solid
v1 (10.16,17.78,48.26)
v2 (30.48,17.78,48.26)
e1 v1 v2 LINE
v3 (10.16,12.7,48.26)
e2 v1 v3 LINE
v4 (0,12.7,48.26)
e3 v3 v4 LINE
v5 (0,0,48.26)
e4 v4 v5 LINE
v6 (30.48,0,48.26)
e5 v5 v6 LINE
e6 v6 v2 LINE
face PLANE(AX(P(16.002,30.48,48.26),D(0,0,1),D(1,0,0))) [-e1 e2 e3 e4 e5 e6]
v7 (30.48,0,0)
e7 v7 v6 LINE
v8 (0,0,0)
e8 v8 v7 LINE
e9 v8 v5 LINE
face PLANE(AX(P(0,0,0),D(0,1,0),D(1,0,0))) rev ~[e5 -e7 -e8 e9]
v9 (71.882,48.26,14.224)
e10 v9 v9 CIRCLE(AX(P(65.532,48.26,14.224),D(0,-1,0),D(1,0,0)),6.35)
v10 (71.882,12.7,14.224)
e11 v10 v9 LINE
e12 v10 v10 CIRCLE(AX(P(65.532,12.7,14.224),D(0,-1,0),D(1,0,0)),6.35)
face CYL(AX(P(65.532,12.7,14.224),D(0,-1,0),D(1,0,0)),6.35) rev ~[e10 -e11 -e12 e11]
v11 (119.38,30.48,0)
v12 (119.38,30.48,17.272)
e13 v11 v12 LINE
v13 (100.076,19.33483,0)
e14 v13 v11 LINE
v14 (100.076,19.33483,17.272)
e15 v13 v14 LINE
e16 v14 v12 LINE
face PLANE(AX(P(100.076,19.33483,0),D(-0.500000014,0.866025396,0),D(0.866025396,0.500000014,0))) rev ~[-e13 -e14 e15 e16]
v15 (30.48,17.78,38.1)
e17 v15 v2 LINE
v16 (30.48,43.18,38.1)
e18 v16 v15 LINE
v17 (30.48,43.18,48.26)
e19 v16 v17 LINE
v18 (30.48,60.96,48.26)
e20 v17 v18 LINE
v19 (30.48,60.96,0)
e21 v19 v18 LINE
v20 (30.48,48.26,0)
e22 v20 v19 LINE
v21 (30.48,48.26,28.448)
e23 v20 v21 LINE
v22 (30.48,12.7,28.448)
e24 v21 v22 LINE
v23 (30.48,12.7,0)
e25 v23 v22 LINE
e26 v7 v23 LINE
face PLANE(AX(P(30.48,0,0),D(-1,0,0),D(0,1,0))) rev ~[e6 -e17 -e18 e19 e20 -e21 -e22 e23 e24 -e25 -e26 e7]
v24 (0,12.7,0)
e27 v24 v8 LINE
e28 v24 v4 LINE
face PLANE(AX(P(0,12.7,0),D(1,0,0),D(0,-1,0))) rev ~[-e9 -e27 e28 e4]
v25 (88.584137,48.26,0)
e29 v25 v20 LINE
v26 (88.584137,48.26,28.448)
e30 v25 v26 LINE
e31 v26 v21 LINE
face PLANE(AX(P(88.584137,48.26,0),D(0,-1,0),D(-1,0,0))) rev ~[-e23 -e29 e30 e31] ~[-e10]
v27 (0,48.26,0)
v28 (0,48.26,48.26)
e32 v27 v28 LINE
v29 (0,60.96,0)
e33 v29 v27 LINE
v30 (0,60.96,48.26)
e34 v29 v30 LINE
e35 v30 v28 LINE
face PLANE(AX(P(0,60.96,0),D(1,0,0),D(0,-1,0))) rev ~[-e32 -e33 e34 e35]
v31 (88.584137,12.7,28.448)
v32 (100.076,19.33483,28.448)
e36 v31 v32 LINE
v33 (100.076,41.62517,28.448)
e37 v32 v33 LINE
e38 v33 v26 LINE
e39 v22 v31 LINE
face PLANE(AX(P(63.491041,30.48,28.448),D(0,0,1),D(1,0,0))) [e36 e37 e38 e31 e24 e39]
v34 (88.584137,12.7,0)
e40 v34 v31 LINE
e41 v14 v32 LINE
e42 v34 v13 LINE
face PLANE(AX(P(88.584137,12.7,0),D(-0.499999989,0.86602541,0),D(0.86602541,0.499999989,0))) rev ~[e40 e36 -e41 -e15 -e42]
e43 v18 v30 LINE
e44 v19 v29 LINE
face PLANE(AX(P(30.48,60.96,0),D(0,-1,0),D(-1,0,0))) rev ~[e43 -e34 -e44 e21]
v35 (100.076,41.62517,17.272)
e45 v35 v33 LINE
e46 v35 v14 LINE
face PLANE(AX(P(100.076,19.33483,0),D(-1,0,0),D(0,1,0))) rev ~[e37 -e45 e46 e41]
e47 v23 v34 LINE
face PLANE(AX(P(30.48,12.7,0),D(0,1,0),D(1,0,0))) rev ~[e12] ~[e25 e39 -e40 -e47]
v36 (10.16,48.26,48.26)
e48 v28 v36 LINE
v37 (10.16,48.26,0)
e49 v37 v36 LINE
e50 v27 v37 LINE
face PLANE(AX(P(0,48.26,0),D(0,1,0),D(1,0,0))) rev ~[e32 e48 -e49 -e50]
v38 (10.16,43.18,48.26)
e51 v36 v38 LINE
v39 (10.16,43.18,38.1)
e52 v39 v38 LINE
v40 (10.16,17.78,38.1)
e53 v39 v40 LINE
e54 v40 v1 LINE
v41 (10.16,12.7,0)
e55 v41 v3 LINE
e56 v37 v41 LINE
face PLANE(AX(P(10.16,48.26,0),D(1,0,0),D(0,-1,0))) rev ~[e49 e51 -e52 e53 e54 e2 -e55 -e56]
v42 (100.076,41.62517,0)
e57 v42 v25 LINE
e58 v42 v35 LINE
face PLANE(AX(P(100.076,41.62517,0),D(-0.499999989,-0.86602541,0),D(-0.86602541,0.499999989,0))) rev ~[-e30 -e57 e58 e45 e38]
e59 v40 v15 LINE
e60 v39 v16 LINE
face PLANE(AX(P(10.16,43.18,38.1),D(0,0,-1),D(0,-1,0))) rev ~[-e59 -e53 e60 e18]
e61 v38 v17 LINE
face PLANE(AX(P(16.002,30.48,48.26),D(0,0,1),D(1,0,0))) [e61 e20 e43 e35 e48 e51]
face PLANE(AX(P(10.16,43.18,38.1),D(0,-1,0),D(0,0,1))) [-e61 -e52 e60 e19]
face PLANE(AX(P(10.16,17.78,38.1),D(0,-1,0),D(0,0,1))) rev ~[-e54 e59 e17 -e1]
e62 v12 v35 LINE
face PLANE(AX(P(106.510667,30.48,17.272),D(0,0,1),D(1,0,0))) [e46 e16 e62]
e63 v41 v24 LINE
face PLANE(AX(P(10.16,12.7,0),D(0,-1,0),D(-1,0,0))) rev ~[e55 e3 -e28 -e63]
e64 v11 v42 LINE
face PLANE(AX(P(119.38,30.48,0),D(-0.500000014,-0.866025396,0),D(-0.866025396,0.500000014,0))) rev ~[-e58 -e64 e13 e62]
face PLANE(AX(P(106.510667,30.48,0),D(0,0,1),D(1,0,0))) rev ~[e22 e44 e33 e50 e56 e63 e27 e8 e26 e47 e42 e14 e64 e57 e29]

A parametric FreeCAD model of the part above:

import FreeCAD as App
import Part
import Sketcher

V = App.Vector
Q = App.Units.Quantity


def add_polygon(sketch, points):
    """Adds a closed chain of lines whose ends are joined by coincident constraints."""
    first, n = sketch.GeometryCount, len(points)
    for a, b in zip(points, points[1:] + points[:1]):
        sketch.addGeometry(Part.LineSegment(App.Vector(*a, 0), App.Vector(*b, 0)), False)
    for i in range(n):
        sketch.addConstraint(Sketcher.Constraint("Coincident", first + i, 2, first + (i + 1) % n, 1))

doc = App.newDocument("Part")
params = doc.addObject("Spreadsheet::Sheet", "Params")
for row, (alias, value) in enumerate([
    ("sketch1_width", "1.2 in"),
    ("sketch1_width2", "0.4 in"),
    ("sketch1_height", "0.5 in"),
    ("sketch1_height2", "2.4 in"),
    ("pad1_length", "1.9 in"),
    ("sketch2_height", "1.4 in"),
    ("pad2_length", "1.12 in"),
    ("pad3_length", "0.68 in"),
    ("sketch4_width", "1 in"),
    ("sketch4_height", "0.4 in"),
    ("pocket1_length", "1 in"),
    ("sketch5_diameter", "0.5 in"),
    ("pocket2_length", "1.83 in"),
], start=1):
    params.set(f"A{row}", alias)
    params.set(f"B{row}", "=" + value)
    params.setAlias(f"B{row}", alias)

body = doc.addObject("PartDesign::Body", "Body")

# Sketch on XY plane
sketch1 = body.newObject("Sketcher::SketchObject", "Sketch")
sketch1.AttachmentSupport = (doc.getObject("XY_Plane"), [""])
sketch1.MapMode = "FlatFace"
add_polygon(sketch1, [(0, 13), (0, 0), (30, 0), (30, 61), (0, 61), (0, 48), (10, 48), (10, 13)])  # lines 0-7
sketch1.addConstraint([
    Sketcher.Constraint("Vertical", 0),
    Sketcher.Constraint("Horizontal", 1),
    Sketcher.Constraint("Vertical", 2),
    Sketcher.Constraint("Horizontal", 3),
    Sketcher.Constraint("Vertical", 4),
    Sketcher.Constraint("Horizontal", 5),
    Sketcher.Constraint("Vertical", 6),
    Sketcher.Constraint("Horizontal", 7),
    Sketcher.Constraint("Coincident", 0, 2, -1, 1),
    Sketcher.Constraint("PointOnObject", 3, 2, -2),
    Sketcher.Constraint("Equal", 0, 4),
    Sketcher.Constraint("DistanceX", 1, 1, 1, 2, Q("1.2 in")),
    Sketcher.Constraint("DistanceX", 5, 1, 5, 2, Q("0.4 in")),
    Sketcher.Constraint("DistanceY", 0, 2, 0, 1, Q("0.5 in")),
    Sketcher.Constraint("DistanceY", 2, 1, 2, 2, Q("2.4 in")),
])
sketch1.setExpression("Constraints[19]", "Params.sketch1_width")
sketch1.setExpression("Constraints[20]", "Params.sketch1_width2")
sketch1.setExpression("Constraints[21]", "Params.sketch1_height")
sketch1.setExpression("Constraints[22]", "Params.sketch1_height2")
pad1 = body.newObject("PartDesign::Pad", "Pad")
pad1.Profile = sketch1
pad1.setExpression("Length", "Params.pad1_length")

# Sketch on XY plane
sketch2 = body.newObject("Sketcher::SketchObject", "Sketch001")
sketch2.AttachmentSupport = (doc.getObject("XY_Plane"), [""])
sketch2.MapMode = "FlatFace"
add_polygon(sketch2, [(30, 48), (30, 13), (89, 13), (100, 19), (100, 42), (89, 48)])  # lines 0-5
sketch2.addConstraint([
    Sketcher.Constraint("Vertical", 0),
    Sketcher.Constraint("Horizontal", 1),
    Sketcher.Constraint("Vertical", 3),
    Sketcher.Constraint("Horizontal", 5),
    Sketcher.Constraint("Vertical", 1, 2, 4, 2),
    Sketcher.Constraint("Equal", 2, 4),
    Sketcher.Constraint("DistanceY", 0, 2, 0, 1, Q("1.4 in")),
    Sketcher.Constraint("Angle", 2, Q("29.999999 deg")),
    Sketcher.Constraint("DistanceX", -1, 1, 0, 2, Q("1.2 in")),
    Sketcher.Constraint("DistanceY", -1, 1, 0, 2, Q("0.5 in")),
    Sketcher.Constraint("DistanceX", -1, 1, 2, 2, Q("3.94 in")),
    Sketcher.Constraint("DistanceY", 3, 1, 3, 2, Q("22.29034 mm")),
])
sketch2.setExpression("Constraints[12]", "Params.sketch2_height")
pad2 = body.newObject("PartDesign::Pad", "Pad001")
pad2.Profile = sketch2
pad2.setExpression("Length", "Params.pad2_length")

# Sketch on XY plane
sketch3 = body.newObject("Sketcher::SketchObject", "Sketch002")
sketch3.AttachmentSupport = (doc.getObject("XY_Plane"), [""])
sketch3.MapMode = "FlatFace"
add_polygon(sketch3, [(100, 42), (100, 19), (119, 30)])  # lines 0-2
sketch3.addConstraint([
    Sketcher.Constraint("Vertical", 0),
    Sketcher.Constraint("Equal", 1, 2),
    Sketcher.Constraint("Angle", 1, Q("30.000001 deg")),
    Sketcher.Constraint("DistanceX", -1, 1, 1, 2, Q("4.7 in")),
    Sketcher.Constraint("DistanceY", -1, 1, 1, 2, Q("1.2 in")),
    Sketcher.Constraint("DistanceX", -1, 1, 0, 2, Q("3.94 in")),
])
pad3 = body.newObject("PartDesign::Pad", "Pad002")
pad3.Profile = sketch3
pad3.setExpression("Length", "Params.pad3_length")

# Sketch on YZ plane
sketch4 = body.newObject("Sketcher::SketchObject", "Sketch003")
sketch4.AttachmentSupport = (doc.getObject("YZ_Plane"), [""])
sketch4.MapMode = "FlatFace"
sketch4.AttachmentOffset = App.Placement(V(0, 0, 0.4 * 25.4), App.Rotation())
add_polygon(sketch4, [(43, 48), (43, 38), (18, 38), (18, 48)])  # lines 0-3
sketch4.addConstraint([
    Sketcher.Constraint("Vertical", 0),
    Sketcher.Constraint("Horizontal", 1),
    Sketcher.Constraint("Vertical", 2),
    Sketcher.Constraint("Horizontal", 3),
    Sketcher.Constraint("DistanceX", 1, 2, 1, 1, Q("1 in")),
    Sketcher.Constraint("DistanceY", 0, 2, 0, 1, Q("0.4 in")),
    Sketcher.Constraint("DistanceX", -1, 1, 0, 2, Q("1.7 in")),
    Sketcher.Constraint("DistanceY", -1, 1, 0, 2, Q("1.5 in")),
])
sketch4.setExpression("Constraints[8]", "Params.sketch4_width")
sketch4.setExpression("Constraints[9]", "Params.sketch4_height")
pocket1 = body.newObject("PartDesign::Pocket", "Pocket")
pocket1.Profile = sketch4
pocket1.setExpression("Length", "Params.pocket1_length")
pocket1.Reversed = True

# Sketch on XZ plane
sketch5 = body.newObject("Sketcher::SketchObject", "Sketch004")
sketch5.AttachmentSupport = (doc.getObject("XZ_Plane"), [""])
sketch5.MapMode = "FlatFace"
sketch5.AttachmentOffset = App.Placement(V(0, 0, -0.5 * 25.4), App.Rotation())
sketch5.addGeometry(Part.Circle(V(66, 14, 0), V(0, 0, 1), 6), False)
sketch5.addConstraint([
    Sketcher.Constraint("Diameter", 0, Q("0.5 in")),
    Sketcher.Constraint("DistanceX", -1, 1, 0, 3, Q("2.58 in")),
    Sketcher.Constraint("DistanceY", -1, 1, 0, 3, Q("0.56 in")),
])
sketch5.setExpression("Constraints[0]", "Params.sketch5_diameter")
pocket2 = body.newObject("PartDesign::Pocket", "Pocket001")
pocket2.Profile = sketch5
pocket2.setExpression("Length", "Params.pocket2_length")

doc.recompute()
